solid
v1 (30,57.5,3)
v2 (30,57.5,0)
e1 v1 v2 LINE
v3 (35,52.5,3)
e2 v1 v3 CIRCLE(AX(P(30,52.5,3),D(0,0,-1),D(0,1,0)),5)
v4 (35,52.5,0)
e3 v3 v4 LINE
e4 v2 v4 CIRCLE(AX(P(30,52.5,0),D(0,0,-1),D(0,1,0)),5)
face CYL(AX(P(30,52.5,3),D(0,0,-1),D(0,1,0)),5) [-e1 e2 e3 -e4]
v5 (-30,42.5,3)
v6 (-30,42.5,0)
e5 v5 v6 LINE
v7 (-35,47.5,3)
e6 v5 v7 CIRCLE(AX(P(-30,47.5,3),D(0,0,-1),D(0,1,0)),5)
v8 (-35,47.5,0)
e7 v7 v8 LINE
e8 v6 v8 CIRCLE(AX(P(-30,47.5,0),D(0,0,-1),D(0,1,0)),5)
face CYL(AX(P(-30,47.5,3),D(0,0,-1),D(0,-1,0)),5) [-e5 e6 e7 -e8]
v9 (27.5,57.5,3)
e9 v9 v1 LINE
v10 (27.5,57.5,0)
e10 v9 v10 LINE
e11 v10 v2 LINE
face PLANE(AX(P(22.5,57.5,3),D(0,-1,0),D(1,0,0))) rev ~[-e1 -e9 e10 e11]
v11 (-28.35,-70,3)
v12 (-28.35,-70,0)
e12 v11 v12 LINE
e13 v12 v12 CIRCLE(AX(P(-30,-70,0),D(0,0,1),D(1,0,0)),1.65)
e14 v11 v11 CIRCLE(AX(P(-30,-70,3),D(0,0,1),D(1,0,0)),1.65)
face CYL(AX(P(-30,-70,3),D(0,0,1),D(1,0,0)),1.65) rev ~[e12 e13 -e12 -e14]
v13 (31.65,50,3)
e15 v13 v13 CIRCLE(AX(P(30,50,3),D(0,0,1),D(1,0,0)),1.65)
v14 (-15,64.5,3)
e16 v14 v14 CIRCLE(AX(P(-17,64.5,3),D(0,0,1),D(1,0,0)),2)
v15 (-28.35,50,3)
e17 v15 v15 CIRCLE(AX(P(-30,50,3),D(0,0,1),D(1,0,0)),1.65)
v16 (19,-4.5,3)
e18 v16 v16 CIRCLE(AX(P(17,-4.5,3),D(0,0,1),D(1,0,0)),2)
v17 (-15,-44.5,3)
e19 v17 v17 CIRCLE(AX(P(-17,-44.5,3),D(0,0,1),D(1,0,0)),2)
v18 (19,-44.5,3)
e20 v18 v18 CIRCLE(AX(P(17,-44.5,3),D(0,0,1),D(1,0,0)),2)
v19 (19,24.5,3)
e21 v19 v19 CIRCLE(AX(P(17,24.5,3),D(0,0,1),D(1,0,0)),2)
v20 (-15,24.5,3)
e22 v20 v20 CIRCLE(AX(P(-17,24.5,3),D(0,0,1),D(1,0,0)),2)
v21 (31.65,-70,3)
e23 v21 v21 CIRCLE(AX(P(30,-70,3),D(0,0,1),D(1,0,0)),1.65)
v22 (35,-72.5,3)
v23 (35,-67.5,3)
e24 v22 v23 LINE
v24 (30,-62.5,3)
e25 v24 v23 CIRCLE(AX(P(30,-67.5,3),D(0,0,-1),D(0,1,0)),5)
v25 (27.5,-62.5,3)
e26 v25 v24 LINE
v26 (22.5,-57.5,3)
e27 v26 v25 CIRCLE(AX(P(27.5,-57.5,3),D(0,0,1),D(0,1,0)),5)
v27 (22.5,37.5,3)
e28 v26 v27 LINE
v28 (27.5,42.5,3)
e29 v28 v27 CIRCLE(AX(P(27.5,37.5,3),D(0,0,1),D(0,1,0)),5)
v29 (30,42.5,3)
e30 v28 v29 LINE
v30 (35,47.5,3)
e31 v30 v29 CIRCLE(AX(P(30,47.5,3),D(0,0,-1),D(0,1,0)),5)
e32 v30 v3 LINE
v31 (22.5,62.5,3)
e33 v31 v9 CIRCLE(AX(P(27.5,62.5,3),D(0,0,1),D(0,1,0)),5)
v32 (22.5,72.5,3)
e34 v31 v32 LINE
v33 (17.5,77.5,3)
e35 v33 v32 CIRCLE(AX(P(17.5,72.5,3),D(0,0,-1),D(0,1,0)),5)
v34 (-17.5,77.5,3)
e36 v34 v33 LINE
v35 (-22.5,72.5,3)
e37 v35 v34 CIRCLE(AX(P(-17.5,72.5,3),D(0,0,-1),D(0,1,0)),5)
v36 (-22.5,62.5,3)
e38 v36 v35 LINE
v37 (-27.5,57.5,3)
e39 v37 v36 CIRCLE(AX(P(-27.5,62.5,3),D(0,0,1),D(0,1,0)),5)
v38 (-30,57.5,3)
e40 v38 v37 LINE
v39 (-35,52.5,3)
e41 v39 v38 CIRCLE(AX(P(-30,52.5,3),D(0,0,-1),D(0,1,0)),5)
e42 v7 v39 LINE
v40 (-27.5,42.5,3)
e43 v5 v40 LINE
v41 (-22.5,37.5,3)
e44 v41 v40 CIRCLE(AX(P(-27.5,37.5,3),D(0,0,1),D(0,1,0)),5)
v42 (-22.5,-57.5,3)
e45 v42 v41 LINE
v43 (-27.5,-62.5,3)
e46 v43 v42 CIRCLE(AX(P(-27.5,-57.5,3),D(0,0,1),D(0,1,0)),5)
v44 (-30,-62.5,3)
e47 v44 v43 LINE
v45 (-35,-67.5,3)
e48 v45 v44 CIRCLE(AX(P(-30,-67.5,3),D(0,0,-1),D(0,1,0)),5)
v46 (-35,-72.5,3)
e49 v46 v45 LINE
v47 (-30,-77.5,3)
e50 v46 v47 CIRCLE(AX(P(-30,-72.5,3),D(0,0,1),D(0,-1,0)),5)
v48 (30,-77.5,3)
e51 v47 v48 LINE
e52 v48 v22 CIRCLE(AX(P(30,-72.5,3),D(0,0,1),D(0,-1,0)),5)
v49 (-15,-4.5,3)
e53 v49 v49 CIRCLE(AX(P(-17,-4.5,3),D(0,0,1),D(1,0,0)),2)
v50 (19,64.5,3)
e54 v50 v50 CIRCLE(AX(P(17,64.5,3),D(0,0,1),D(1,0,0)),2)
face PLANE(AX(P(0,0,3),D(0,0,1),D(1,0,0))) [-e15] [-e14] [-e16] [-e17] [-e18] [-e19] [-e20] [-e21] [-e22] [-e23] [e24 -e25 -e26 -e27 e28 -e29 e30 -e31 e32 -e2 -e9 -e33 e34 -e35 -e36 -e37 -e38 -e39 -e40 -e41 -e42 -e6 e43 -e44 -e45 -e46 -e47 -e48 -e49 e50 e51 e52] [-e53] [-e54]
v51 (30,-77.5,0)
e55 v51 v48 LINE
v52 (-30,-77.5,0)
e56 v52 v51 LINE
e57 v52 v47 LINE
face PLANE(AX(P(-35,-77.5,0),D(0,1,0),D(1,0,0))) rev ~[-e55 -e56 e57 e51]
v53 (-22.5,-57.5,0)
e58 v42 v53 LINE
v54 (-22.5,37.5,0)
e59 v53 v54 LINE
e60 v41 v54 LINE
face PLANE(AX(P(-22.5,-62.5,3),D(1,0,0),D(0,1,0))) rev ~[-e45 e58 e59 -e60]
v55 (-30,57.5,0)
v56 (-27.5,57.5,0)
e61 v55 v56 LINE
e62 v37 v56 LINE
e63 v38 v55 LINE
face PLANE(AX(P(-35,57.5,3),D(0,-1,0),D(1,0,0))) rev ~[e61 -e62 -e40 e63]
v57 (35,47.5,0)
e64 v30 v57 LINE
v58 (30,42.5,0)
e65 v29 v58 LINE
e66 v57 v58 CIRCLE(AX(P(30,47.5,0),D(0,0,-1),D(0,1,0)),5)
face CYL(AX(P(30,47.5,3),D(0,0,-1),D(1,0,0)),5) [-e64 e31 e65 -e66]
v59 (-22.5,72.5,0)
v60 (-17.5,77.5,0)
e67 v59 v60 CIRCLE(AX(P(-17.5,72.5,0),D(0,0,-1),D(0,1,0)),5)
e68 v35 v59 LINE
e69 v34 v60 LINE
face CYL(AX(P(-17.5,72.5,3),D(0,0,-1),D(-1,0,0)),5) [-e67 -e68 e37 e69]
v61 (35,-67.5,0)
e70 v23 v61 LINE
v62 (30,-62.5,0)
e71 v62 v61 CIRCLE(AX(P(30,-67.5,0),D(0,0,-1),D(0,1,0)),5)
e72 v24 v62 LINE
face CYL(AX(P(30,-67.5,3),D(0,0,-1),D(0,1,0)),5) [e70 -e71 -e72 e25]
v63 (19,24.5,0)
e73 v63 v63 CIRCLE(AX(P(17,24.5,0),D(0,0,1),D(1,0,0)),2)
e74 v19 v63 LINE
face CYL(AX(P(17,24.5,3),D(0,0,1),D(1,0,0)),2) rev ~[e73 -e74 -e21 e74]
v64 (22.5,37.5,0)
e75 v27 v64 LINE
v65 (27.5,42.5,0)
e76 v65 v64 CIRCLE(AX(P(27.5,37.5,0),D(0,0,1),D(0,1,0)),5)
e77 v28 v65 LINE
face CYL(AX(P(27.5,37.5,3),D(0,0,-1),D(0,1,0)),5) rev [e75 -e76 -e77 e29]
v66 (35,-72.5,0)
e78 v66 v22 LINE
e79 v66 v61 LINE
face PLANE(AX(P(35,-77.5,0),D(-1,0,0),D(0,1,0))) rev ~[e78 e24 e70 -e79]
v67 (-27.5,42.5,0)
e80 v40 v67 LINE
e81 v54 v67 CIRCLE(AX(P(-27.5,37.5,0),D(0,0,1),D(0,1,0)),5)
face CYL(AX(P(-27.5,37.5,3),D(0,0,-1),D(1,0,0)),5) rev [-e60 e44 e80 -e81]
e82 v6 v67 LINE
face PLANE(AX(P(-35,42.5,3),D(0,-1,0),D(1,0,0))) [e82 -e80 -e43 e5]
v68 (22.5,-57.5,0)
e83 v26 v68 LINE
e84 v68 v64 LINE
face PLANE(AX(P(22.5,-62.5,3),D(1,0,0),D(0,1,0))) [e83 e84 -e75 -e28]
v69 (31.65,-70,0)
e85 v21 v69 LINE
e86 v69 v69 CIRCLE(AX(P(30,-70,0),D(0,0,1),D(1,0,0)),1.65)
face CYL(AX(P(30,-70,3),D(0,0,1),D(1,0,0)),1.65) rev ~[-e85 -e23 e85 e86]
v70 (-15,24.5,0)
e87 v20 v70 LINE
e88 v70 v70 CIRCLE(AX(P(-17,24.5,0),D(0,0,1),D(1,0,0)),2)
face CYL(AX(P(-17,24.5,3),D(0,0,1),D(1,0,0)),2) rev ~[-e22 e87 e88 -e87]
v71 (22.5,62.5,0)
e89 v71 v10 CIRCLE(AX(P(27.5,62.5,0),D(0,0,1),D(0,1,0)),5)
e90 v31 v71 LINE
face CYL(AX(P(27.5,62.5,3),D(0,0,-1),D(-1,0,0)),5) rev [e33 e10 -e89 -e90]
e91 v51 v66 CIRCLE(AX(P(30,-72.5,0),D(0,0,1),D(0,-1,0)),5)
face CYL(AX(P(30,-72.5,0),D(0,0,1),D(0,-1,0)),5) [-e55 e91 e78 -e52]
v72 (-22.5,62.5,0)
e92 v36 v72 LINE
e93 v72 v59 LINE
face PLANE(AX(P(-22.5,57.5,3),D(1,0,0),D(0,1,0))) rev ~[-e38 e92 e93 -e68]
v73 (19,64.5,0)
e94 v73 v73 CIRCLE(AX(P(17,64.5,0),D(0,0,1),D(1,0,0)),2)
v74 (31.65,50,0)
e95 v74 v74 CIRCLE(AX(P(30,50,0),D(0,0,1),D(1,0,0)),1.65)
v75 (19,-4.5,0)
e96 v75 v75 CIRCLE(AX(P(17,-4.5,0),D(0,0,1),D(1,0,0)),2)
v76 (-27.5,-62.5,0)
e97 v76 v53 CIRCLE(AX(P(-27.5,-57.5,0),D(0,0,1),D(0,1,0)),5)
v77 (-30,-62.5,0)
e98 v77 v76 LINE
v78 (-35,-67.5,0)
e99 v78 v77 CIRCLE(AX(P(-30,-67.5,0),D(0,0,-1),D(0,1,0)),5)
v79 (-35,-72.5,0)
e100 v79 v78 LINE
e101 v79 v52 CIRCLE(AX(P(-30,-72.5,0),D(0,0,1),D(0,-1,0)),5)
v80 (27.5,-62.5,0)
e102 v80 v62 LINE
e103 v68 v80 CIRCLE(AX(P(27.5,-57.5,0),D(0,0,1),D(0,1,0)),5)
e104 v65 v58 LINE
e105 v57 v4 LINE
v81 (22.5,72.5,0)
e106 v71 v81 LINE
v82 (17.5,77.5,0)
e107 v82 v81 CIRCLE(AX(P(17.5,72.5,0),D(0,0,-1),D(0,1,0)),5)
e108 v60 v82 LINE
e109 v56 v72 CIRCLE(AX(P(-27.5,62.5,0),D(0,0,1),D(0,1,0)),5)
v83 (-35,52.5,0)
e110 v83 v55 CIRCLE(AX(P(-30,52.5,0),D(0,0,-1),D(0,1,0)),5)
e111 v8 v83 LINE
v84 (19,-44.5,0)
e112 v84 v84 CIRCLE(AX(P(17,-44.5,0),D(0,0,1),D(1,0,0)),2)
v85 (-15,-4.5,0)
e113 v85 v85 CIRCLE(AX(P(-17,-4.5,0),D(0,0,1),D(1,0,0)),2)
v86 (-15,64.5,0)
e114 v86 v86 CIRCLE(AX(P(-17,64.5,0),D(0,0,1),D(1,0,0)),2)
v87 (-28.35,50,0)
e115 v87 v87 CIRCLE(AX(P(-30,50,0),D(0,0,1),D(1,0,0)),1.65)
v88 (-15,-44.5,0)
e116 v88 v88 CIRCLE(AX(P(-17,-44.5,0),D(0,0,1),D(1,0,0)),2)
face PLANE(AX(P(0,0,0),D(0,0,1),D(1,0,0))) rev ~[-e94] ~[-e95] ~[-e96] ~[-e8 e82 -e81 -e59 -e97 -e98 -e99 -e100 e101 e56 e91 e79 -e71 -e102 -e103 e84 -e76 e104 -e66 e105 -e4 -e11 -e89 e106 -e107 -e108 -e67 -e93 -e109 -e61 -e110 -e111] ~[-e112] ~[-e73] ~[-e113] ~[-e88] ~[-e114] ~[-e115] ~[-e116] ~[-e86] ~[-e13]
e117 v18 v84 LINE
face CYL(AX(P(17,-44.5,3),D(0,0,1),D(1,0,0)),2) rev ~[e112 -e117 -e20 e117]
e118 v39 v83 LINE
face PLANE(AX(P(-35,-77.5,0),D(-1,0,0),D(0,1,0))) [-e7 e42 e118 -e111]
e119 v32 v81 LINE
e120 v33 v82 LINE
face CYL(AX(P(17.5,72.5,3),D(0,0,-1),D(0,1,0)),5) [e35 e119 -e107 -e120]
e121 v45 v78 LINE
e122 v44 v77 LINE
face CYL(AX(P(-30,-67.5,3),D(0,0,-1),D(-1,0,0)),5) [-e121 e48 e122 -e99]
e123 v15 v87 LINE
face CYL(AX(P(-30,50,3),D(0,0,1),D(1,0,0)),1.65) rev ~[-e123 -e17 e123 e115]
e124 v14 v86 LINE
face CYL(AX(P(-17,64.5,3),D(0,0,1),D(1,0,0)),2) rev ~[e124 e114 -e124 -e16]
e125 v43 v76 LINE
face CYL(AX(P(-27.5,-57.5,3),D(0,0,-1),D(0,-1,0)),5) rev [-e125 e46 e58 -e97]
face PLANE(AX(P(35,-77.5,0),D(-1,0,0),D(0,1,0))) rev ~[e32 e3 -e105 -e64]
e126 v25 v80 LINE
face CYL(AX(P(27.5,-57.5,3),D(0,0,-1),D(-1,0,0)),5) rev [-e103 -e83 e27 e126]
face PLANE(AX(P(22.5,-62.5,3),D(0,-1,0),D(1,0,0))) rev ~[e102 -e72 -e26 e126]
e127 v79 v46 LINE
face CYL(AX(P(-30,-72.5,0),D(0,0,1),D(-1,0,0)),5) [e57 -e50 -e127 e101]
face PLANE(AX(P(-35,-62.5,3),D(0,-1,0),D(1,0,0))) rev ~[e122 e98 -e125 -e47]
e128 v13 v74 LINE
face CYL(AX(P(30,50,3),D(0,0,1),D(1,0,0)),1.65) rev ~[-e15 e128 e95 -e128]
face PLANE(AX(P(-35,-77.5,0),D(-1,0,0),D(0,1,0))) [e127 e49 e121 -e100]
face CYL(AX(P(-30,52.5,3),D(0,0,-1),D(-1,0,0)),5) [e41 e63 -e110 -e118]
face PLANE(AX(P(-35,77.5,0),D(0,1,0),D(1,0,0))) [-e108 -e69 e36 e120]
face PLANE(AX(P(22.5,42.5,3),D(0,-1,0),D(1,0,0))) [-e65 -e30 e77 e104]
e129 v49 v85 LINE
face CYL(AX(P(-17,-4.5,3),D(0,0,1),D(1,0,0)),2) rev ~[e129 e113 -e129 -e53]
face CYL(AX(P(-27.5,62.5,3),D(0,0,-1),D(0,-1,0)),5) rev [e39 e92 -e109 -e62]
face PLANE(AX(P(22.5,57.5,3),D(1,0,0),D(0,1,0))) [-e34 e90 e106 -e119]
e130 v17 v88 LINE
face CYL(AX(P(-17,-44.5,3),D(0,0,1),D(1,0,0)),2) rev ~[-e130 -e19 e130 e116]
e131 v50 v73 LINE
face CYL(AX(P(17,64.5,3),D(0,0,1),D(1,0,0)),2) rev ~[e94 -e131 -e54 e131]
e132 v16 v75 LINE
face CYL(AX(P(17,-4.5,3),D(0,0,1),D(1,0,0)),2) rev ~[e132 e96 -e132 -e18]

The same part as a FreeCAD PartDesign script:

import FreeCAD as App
import Part
import Sketcher

V = App.Vector
Q = App.Units.Quantity


def edges_at(feature, points):
    """Names of the edges that pass closest to the given points."""
    edges = feature.Shape.Edges
    near = lambda p: min(range(len(edges)), key=lambda i: edges[i].distToShape(Part.Vertex(*p))[0])
    return sorted({f"Edge{near(p) + 1}" for p in points})

doc = App.newDocument("Part")
body = doc.addObject("PartDesign::Body", "Body")

# Sketch on XY plane
sketch1 = doc.addObject("Sketcher::SketchObject", "Sketch")
body.addObject(sketch1)
sketch1.AttachmentSupport = (doc.XY_Plane, [""])
sketch1.MapMode = "FlatFace"
sketch1.addGeometry(Part.LineSegment(V(-35, 77.5, 0), V(-35, -77.5, 0)), False)
sketch1.addGeometry(Part.LineSegment(V(-35, -77.5, 0), V(35, -77.5, 0)), False)
sketch1.addGeometry(Part.LineSegment(V(35, -77.5, 0), V(35, 77.5, 0)), False)
sketch1.addGeometry(Part.LineSegment(V(35, 77.5, 0), V(-35, 77.5, 0)), False)
sketch1.addConstraint(Sketcher.Constraint("Coincident", 0, 2, 1, 1))
sketch1.addConstraint(Sketcher.Constraint("Coincident", 1, 2, 2, 1))
sketch1.addConstraint(Sketcher.Constraint("Coincident", 2, 2, 3, 1))
sketch1.addConstraint(Sketcher.Constraint("Coincident", 3, 2, 0, 1))
sketch1.addConstraint(Sketcher.Constraint("Vertical", 0))
sketch1.addConstraint(Sketcher.Constraint("Horizontal", 1))
sketch1.addConstraint(Sketcher.Constraint("Vertical", 2))
sketch1.addConstraint(Sketcher.Constraint("Horizontal", 3))
sketch1.addConstraint(Sketcher.Constraint("Symmetric", 0, 2, 2, 2, -1, 1))
sketch1.addConstraint(Sketcher.Constraint("DistanceX", 1, 1, 1, 2, Q("70 mm")))
sketch1.addConstraint(Sketcher.Constraint("DistanceY", 0, 2, 0, 1, Q("155 mm")))
pad1 = doc.addObject("PartDesign::Pad", "Pad")
body.addObject(pad1)
pad1.Profile = sketch1
pad1.Length = 3

# Sketch on XY plane
sketch2 = doc.addObject("Sketcher::SketchObject", "Sketch001")
body.addObject(sketch2)
sketch2.AttachmentSupport = (doc.XY_Plane, [""])
sketch2.MapMode = "FlatFace"
sketch2.AttachmentOffset = App.Placement(V(0, 0, 3), App.Rotation())
sketch2.addGeometry(Part.Circle(V(-17, -44.5, 0), V(0, 0, 1), 2), False)
sketch2.addGeometry(Part.Circle(V(17, -44.5, 0), V(0, 0, 1), 2), False)
sketch2.addGeometry(Part.Circle(V(17, -4.5, 0), V(0, 0, 1), 2), False)
sketch2.addGeometry(Part.Circle(V(-17, -4.5, 0), V(0, 0, 1), 2), False)
sketch2.addGeometry(Part.Circle(V(-17, 24.5, 0), V(0, 0, 1), 2), False)
sketch2.addGeometry(Part.Circle(V(-17, 64.5, 0), V(0, 0, 1), 2), False)
sketch2.addGeometry(Part.Circle(V(17, 64.5, 0), V(0, 0, 1), 2), False)
sketch2.addGeometry(Part.Circle(V(17, 24.5, 0), V(0, 0, 1), 2), False)
sketch2.addGeometry(Part.Circle(V(-30, -70, 0), V(0, 0, 1), 1.65), False)
sketch2.addGeometry(Part.Circle(V(30, -70, 0), V(0, 0, 1), 1.65), False)
sketch2.addGeometry(Part.Circle(V(30, 50, 0), V(0, 0, 1), 1.65), False)
sketch2.addGeometry(Part.Circle(V(-30, 50, 0), V(0, 0, 1), 1.65), False)
sketch2.addConstraint(Sketcher.Constraint("Equal", 0, 1))
sketch2.addConstraint(Sketcher.Constraint("Equal", 1, 2))
sketch2.addConstraint(Sketcher.Constraint("Equal", 2, 3))
sketch2.addConstraint(Sketcher.Constraint("Equal", 3, 4))
sketch2.addConstraint(Sketcher.Constraint("Equal", 4, 5))
sketch2.addConstraint(Sketcher.Constraint("Equal", 5, 6))
sketch2.addConstraint(Sketcher.Constraint("Equal", 6, 7))
sketch2.addConstraint(Sketcher.Constraint("Equal", 8, 9))
sketch2.addConstraint(Sketcher.Constraint("Equal", 9, 10))
sketch2.addConstraint(Sketcher.Constraint("Equal", 10, 11))
sketch2.addConstraint(Sketcher.Constraint("Symmetric", 0, 3, 1, 3, -2))
sketch2.addConstraint(Sketcher.Constraint("Symmetric", 2, 3, 3, 3, -2))
sketch2.addConstraint(Sketcher.Constraint("Symmetric", 5, 3, 6, 3, -2))
sketch2.addConstraint(Sketcher.Constraint("Symmetric", 4, 3, 7, 3, -2))
sketch2.addConstraint(Sketcher.Constraint("Symmetric", 8, 3, 9, 3, -2))
sketch2.addConstraint(Sketcher.Constraint("Symmetric", 10, 3, 11, 3, -2))
sketch2.addConstraint(Sketcher.Constraint("Vertical", 1, 3, 2, 3))
sketch2.addConstraint(Sketcher.Constraint("Vertical", 3, 3, 4, 3))
sketch2.addConstraint(Sketcher.Constraint("Vertical", 4, 3, 5, 3))
sketch2.addConstraint(Sketcher.Constraint("Vertical", 9, 3, 10, 3))
sketch2.addConstraint(Sketcher.Constraint("Diameter", 0, Q("4 mm")))
sketch2.addConstraint(Sketcher.Constraint("Diameter", 8, Q("3.3 mm")))
sketch2.addConstraint(Sketcher.Constraint("DistanceX", 0, 3, -1, 1, Q("17 mm")))
sketch2.addConstraint(Sketcher.Constraint("DistanceX", 8, 3, -1, 1, Q("30 mm")))
sketch2.addConstraint(Sketcher.Constraint("DistanceY", 8, 3, -1, 1, Q("70 mm")))
sketch2.addConstraint(Sketcher.Constraint("DistanceY", -1, 1, 10, 3, Q("50 mm")))
sketch2.addConstraint(Sketcher.Constraint("DistanceY", 1, 3, 2, 3, Q("40 mm")))
sketch2.addConstraint(Sketcher.Constraint("DistanceY", 3, 3, 4, 3, Q("29 mm")))
sketch2.addConstraint(Sketcher.Constraint("DistanceY", 4, 3, 5, 3, Q("40 mm")))
sketch2.addConstraint(Sketcher.Constraint("DistanceY", 0, 3, -1, 1, Q("44.5 mm")))
pocket1 = doc.addObject("PartDesign::Pocket", "Pocket")
body.addObject(pocket1)
pocket1.Profile = sketch2
pocket1.Length = 3

# Sketch on XY plane
sketch3 = doc.addObject("Sketcher::SketchObject", "Sketch002")
body.addObject(sketch3)
sketch3.AttachmentSupport = (doc.XY_Plane, [""])
sketch3.MapMode = "FlatFace"
sketch3.AttachmentOffset = App.Placement(V(0, 0, 3), App.Rotation())
sketch3.addGeometry(Part.LineSegment(V(-35, 42.5, 0), V(-35, -62.5, 0)), False)
sketch3.addGeometry(Part.LineSegment(V(-35, -62.5, 0), V(-22.5, -62.5, 0)), False)
sketch3.addGeometry(Part.LineSegment(V(-22.5, -62.5, 0), V(-22.5, 42.5, 0)), False)
sketch3.addGeometry(Part.LineSegment(V(-22.5, 42.5, 0), V(-35, 42.5, 0)), False)
sketch3.addGeometry(Part.LineSegment(V(22.5, 42.5, 0), V(22.5, -62.5, 0)), False)
sketch3.addGeometry(Part.LineSegment(V(22.5, -62.5, 0), V(35, -62.5, 0)), False)
sketch3.addGeometry(Part.LineSegment(V(35, -62.5, 0), V(35, 42.5, 0)), False)
sketch3.addGeometry(Part.LineSegment(V(35, 42.5, 0), V(22.5, 42.5, 0)), False)
sketch3.addGeometry(Part.LineSegment(V(-35, 77.5, 0), V(-35, 57.5, 0)), False)
sketch3.addGeometry(Part.LineSegment(V(-35, 57.5, 0), V(-22.5, 57.5, 0)), False)
sketch3.addGeometry(Part.LineSegment(V(-22.5, 57.5, 0), V(-22.5, 77.5, 0)), False)
sketch3.addGeometry(Part.LineSegment(V(-22.5, 77.5, 0), V(-35, 77.5, 0)), False)
sketch3.addGeometry(Part.LineSegment(V(22.5, 77.5, 0), V(22.5, 57.5, 0)), False)
sketch3.addGeometry(Part.LineSegment(V(22.5, 57.5, 0), V(35, 57.5, 0)), False)
sketch3.addGeometry(Part.LineSegment(V(35, 57.5, 0), V(35, 77.5, 0)), False)
sketch3.addGeometry(Part.LineSegment(V(35, 77.5, 0), V(22.5, 77.5, 0)), False)
sketch3.addConstraint(Sketcher.Constraint("Coincident", 0, 2, 1, 1))
sketch3.addConstraint(Sketcher.Constraint("Coincident", 1, 2, 2, 1))
sketch3.addConstraint(Sketcher.Constraint("Coincident", 2, 2, 3, 1))
sketch3.addConstraint(Sketcher.Constraint("Coincident", 3, 2, 0, 1))
sketch3.addConstraint(Sketcher.Constraint("Coincident", 4, 2, 5, 1))
sketch3.addConstraint(Sketcher.Constraint("Coincident", 5, 2, 6, 1))
sketch3.addConstraint(Sketcher.Constraint("Coincident", 6, 2, 7, 1))
sketch3.addConstraint(Sketcher.Constraint("Coincident", 7, 2, 4, 1))
sketch3.addConstraint(Sketcher.Constraint("Coincident", 8, 2, 9, 1))
sketch3.addConstraint(Sketcher.Constraint("Coincident", 9, 2, 10, 1))
sketch3.addConstraint(Sketcher.Constraint("Coincident", 10, 2, 11, 1))
sketch3.addConstraint(Sketcher.Constraint("Coincident", 11, 2, 8, 1))
sketch3.addConstraint(Sketcher.Constraint("Coincident", 12, 2, 13, 1))
sketch3.addConstraint(Sketcher.Constraint("Coincident", 13, 2, 14, 1))
sketch3.addConstraint(Sketcher.Constraint("Coincident", 14, 2, 15, 1))
sketch3.addConstraint(Sketcher.Constraint("Coincident", 15, 2, 12, 1))
sketch3.addConstraint(Sketcher.Constraint("Vertical", 0))
sketch3.addConstraint(Sketcher.Constraint("Horizontal", 1))
sketch3.addConstraint(Sketcher.Constraint("Vertical", 2))
sketch3.addConstraint(Sketcher.Constraint("Horizontal", 3))
sketch3.addConstraint(Sketcher.Constraint("Vertical", 4))
sketch3.addConstraint(Sketcher.Constraint("Horizontal", 5))
sketch3.addConstraint(Sketcher.Constraint("Vertical", 6))
sketch3.addConstraint(Sketcher.Constraint("Horizontal", 7))
sketch3.addConstraint(Sketcher.Constraint("Vertical", 8))
sketch3.addConstraint(Sketcher.Constraint("Horizontal", 9))
sketch3.addConstraint(Sketcher.Constraint("Vertical", 10))
sketch3.addConstraint(Sketcher.Constraint("Horizontal", 11))
sketch3.addConstraint(Sketcher.Constraint("Vertical", 12))
sketch3.addConstraint(Sketcher.Constraint("Horizontal", 13))
sketch3.addConstraint(Sketcher.Constraint("Vertical", 14))
sketch3.addConstraint(Sketcher.Constraint("Horizontal", 15))
sketch3.addConstraint(Sketcher.Constraint("Symmetric", 1, 2, 4, 2, -2))
sketch3.addConstraint(Sketcher.Constraint("Symmetric", 3, 2, 6, 2, -2))
sketch3.addConstraint(Sketcher.Constraint("Symmetric", 9, 2, 12, 2, -2))
sketch3.addConstraint(Sketcher.Constraint("Symmetric", 11, 2, 14, 2, -2))
sketch3.addConstraint(Sketcher.Constraint("Vertical", 3, 2, 8, 2))
sketch3.addConstraint(Sketcher.Constraint("Vertical", 2, 2, 9, 2))
sketch3.addConstraint(Sketcher.Constraint("DistanceY", 0, 2, 0, 1, Q("105 mm")))
sketch3.addConstraint(Sketcher.Constraint("DistanceY", 8, 2, 8, 1, Q("20 mm")))
sketch3.addConstraint(Sketcher.Constraint("DistanceX", 1, 1, 1, 2, Q("12.5 mm")))
sketch3.addConstraint(Sketcher.Constraint("DistanceX", 0, 2, -1, 1, Q("35 mm")))
sketch3.addConstraint(Sketcher.Constraint("DistanceY", 3, 2, 8, 2, Q("15 mm")))
sketch3.addConstraint(Sketcher.Constraint("DistanceY", 0, 2, -1, 1, Q("62.5 mm")))
pocket2 = doc.addObject("PartDesign::Pocket", "Pocket001")
body.addObject(pocket2)
pocket2.Profile = sketch3
pocket2.Length = 10
doc.recompute()

fillet = doc.addObject("PartDesign::Fillet", "Fillet")
body.addObject(fillet)
fillet.Base = (pocket2, edges_at(pocket2, [
    (35, 57.5, 1.5),
    (22.5, 57.5, 1.5),
    (22.5, 77.5, 1.5),
    (35, 42.5, 1.5),
    (35, -62.5, 1.5),
    (22.5, -62.5, 1.5),
    (22.5, 42.5, 1.5),
    (-35, -62.5, 1.5),
    (-35, 42.5, 1.5),
    (-22.5, 42.5, 1.5),
    (-22.5, -62.5, 1.5),
    (-35, -77.5, 1.5),
    (35, -77.5, 1.5),
    (-35, 57.5, 1.5),
    (-22.5, 77.5, 1.5),
    (-22.5, 57.5, 1.5),
]))
fillet.Radius = 5

doc.recompute()
